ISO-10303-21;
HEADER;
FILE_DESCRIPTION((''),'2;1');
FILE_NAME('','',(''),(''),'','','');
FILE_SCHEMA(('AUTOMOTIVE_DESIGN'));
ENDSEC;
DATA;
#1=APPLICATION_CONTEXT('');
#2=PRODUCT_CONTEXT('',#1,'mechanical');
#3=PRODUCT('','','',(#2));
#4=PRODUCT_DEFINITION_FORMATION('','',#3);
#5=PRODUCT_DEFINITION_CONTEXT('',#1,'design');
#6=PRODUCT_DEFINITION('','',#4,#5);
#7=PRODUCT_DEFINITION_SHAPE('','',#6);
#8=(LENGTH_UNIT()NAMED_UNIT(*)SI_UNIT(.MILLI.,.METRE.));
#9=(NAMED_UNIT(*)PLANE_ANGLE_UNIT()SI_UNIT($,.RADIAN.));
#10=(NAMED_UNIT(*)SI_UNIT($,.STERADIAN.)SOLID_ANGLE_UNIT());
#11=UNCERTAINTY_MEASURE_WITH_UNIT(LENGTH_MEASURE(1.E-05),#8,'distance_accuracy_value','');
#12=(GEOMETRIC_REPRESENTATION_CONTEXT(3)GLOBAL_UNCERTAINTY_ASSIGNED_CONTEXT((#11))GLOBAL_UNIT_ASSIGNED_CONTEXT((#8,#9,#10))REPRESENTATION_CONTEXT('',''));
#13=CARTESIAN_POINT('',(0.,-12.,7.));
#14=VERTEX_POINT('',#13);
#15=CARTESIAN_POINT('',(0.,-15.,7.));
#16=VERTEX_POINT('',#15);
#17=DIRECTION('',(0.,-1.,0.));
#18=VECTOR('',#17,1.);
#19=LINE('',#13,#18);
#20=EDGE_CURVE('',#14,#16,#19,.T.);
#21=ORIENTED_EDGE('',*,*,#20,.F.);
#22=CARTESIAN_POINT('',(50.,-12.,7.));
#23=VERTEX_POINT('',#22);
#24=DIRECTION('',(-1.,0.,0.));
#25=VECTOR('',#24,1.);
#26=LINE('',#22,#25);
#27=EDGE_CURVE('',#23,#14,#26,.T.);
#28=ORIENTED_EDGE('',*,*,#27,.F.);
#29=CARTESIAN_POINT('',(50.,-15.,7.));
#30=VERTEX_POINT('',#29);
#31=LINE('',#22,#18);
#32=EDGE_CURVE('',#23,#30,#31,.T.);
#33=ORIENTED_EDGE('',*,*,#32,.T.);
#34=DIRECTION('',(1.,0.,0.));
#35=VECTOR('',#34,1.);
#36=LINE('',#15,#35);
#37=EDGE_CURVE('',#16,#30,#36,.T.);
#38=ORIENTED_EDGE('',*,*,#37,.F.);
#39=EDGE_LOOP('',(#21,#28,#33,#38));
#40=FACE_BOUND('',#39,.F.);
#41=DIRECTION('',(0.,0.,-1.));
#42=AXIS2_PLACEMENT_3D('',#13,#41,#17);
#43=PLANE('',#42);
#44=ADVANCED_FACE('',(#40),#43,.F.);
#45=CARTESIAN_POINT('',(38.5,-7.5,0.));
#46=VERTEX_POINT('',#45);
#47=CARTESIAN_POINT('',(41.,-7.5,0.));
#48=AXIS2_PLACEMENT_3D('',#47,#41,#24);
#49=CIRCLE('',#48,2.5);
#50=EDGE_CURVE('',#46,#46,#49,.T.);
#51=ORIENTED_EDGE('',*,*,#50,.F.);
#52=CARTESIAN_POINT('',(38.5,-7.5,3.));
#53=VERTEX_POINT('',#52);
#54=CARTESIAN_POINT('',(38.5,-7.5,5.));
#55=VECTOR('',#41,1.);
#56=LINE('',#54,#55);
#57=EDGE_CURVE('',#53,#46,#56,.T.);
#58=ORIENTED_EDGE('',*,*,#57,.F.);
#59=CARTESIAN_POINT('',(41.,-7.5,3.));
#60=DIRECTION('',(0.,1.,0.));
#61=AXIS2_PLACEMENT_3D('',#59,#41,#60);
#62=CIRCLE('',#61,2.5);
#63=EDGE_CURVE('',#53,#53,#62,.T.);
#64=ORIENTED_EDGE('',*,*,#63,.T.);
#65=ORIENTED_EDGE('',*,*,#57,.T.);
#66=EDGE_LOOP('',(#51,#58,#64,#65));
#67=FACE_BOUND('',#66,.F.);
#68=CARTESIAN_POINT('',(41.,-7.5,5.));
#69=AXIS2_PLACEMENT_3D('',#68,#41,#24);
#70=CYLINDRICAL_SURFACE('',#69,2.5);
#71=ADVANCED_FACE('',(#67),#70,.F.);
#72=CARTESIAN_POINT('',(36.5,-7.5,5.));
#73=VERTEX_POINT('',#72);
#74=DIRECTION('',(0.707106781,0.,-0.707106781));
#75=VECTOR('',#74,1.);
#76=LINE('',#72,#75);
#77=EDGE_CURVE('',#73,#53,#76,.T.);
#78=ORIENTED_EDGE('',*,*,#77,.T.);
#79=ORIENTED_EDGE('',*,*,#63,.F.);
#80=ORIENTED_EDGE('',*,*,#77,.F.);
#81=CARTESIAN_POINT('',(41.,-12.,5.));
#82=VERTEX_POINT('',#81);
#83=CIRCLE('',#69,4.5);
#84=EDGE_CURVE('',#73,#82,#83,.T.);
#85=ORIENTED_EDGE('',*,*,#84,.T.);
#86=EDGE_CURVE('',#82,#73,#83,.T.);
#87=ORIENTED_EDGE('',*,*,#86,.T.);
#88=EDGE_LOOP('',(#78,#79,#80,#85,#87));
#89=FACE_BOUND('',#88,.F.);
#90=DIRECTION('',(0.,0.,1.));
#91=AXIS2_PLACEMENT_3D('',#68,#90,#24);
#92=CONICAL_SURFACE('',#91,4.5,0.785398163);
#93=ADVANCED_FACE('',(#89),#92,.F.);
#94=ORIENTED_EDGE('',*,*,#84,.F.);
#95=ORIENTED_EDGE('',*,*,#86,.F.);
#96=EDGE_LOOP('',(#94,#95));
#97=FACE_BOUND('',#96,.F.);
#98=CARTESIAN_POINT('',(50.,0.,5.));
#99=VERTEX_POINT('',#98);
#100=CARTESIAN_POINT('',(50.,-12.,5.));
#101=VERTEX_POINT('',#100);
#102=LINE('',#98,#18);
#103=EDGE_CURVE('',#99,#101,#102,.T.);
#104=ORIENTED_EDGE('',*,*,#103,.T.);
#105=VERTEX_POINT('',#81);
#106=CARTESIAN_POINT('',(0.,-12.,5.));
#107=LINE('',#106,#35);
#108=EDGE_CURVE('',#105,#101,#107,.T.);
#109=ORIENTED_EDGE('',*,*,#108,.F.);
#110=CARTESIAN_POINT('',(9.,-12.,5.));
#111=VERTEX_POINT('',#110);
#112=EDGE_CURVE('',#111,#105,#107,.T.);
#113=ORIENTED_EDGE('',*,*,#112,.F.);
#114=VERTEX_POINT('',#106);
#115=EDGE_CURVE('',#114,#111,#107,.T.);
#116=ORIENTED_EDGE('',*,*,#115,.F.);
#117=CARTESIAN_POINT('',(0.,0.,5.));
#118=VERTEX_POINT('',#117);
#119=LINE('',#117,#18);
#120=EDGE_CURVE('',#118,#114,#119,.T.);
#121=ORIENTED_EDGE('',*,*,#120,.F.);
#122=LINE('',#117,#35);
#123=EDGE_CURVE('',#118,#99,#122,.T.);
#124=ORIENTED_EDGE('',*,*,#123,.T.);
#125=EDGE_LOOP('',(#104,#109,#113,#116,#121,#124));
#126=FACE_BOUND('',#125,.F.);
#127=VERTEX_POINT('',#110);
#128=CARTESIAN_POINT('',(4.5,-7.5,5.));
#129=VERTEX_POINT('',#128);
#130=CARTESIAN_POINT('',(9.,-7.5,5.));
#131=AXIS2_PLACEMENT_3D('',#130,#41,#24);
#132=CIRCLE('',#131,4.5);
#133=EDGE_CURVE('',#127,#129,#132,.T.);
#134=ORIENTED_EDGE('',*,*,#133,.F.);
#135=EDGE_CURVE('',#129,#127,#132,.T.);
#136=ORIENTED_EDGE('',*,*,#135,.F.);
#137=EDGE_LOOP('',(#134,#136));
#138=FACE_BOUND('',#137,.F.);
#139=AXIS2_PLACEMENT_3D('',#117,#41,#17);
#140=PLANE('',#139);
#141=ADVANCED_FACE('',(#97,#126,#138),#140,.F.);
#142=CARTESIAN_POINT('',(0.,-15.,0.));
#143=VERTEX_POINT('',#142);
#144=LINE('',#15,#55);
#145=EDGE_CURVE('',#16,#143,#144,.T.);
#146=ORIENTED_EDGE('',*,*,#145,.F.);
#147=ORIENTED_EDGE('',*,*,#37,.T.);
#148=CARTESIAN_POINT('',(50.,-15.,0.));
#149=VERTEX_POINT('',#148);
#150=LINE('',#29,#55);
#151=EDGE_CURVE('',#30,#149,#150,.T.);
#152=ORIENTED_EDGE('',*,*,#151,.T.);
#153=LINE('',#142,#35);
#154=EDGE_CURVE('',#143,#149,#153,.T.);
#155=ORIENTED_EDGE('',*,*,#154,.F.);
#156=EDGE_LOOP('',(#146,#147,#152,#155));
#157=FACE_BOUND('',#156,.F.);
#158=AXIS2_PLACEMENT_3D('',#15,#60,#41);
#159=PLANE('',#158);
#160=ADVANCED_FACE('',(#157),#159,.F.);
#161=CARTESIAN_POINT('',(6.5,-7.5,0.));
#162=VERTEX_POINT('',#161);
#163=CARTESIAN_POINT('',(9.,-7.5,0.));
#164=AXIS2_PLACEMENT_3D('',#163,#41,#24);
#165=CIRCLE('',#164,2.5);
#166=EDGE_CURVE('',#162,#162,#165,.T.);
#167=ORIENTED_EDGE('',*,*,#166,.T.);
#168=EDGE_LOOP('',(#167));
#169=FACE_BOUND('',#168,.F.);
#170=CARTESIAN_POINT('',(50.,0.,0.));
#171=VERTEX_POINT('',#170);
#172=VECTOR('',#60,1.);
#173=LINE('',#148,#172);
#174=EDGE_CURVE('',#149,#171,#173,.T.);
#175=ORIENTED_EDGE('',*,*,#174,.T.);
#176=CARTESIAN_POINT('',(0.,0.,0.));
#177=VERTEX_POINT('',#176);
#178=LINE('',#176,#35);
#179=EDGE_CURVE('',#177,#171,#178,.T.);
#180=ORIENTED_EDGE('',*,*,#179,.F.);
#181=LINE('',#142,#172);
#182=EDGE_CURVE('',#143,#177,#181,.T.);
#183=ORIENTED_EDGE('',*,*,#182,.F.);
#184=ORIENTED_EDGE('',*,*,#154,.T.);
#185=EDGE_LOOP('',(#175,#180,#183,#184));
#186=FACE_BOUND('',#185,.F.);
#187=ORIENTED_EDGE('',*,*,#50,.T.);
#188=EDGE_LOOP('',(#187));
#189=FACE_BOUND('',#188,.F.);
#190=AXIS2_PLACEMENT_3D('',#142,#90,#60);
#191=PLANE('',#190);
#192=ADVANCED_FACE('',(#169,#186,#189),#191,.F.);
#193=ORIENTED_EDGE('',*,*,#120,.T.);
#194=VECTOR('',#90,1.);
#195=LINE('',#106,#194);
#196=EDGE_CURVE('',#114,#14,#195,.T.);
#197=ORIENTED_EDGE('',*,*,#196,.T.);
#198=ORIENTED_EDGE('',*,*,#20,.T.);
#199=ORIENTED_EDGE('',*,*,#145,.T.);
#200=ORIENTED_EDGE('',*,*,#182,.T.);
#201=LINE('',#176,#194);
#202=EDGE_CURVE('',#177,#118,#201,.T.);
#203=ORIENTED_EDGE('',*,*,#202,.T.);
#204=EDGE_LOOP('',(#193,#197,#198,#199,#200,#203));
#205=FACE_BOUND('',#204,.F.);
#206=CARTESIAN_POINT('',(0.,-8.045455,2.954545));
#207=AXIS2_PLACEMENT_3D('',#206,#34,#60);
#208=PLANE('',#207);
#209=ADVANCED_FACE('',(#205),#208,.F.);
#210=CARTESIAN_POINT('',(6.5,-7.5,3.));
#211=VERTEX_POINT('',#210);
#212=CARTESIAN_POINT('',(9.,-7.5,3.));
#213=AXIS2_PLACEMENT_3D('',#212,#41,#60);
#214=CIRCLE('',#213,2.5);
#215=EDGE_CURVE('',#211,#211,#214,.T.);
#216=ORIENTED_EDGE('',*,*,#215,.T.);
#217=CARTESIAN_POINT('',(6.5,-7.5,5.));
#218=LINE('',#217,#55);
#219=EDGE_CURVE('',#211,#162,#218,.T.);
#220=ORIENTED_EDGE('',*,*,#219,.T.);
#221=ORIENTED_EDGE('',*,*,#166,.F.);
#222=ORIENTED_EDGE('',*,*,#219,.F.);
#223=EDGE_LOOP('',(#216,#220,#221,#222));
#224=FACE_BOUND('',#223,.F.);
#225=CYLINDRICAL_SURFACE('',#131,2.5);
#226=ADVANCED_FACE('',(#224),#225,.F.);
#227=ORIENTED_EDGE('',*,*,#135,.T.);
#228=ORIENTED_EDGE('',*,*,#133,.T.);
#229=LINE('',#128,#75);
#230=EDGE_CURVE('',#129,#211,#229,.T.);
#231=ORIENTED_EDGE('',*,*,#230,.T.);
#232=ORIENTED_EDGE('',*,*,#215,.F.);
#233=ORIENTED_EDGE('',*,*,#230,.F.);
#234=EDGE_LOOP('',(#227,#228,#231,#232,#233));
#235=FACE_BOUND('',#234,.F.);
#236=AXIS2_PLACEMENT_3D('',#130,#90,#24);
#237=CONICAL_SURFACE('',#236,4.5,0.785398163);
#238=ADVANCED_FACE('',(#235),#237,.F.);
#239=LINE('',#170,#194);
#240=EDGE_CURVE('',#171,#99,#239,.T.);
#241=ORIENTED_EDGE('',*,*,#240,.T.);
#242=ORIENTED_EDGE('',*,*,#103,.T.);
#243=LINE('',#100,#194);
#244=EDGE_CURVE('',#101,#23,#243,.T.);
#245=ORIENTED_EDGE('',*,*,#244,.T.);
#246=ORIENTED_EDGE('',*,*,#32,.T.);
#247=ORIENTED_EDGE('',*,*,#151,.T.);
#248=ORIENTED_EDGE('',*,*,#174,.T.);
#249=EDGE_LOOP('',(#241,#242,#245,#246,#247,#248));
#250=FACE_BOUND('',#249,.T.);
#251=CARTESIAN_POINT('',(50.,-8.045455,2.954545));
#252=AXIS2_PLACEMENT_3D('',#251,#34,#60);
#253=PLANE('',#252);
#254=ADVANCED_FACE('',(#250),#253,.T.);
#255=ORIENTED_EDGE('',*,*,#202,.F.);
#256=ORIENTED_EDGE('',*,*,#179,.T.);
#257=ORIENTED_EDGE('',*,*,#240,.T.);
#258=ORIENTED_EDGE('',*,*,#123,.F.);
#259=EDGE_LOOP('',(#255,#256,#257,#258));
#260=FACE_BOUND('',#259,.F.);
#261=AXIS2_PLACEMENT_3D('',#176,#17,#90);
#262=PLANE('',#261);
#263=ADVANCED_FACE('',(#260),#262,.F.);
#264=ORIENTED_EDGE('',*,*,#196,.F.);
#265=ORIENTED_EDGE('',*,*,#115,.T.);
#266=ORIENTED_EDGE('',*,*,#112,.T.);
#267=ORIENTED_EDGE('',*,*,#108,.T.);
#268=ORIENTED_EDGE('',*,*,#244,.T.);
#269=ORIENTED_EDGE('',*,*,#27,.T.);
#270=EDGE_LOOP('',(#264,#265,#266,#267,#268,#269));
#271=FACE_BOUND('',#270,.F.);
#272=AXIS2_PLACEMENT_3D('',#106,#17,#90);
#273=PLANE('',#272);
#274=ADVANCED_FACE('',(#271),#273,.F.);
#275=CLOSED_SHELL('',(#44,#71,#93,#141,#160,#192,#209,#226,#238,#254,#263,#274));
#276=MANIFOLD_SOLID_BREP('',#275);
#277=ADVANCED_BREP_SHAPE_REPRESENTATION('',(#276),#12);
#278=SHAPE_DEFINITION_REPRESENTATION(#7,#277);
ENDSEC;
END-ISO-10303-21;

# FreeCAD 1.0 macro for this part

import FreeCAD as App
import Part
import Sketcher
from FreeCAD import Vector
Q = App.Units.Quantity

doc = App.newDocument("Part")
body = doc.addObject("PartDesign::Body", "Body")

# Sketch on YZ plane
sketch1 = body.newObject("Sketcher::SketchObject", "Sketch")
sketch1.AttachmentSupport = (doc.getObject("YZ_Plane"), [""])
sketch1.MapMode = "FlatFace"
sketch1.addGeometry([
    Part.LineSegment(Vector(-15, 0, 0), Vector(0, 0, 0)),  # 0
    Part.LineSegment(Vector(0, 0, 0), Vector(0, 5, 0)),  # 1
    Part.LineSegment(Vector(0, 5, 0), Vector(-12, 5, 0)),  # 2
    Part.LineSegment(Vector(-12, 5, 0), Vector(-12, 7, 0)),  # 3
    Part.LineSegment(Vector(-12, 7, 0), Vector(-15, 7, 0)),  # 4
    Part.LineSegment(Vector(-15, 7, 0), Vector(-15, 0, 0)),  # 5
], False)
sketch1.addConstraint([
    Sketcher.Constraint("Coincident", 0, 2, 1, 1),
    Sketcher.Constraint("Coincident", 1, 2, 2, 1),
    Sketcher.Constraint("Coincident", 2, 2, 3, 1),
    Sketcher.Constraint("Coincident", 3, 2, 4, 1),
    Sketcher.Constraint("Coincident", 4, 2, 5, 1),
    Sketcher.Constraint("Coincident", 5, 2, 0, 1),
    Sketcher.Constraint("Horizontal", 0),
    Sketcher.Constraint("Vertical", 1),
    Sketcher.Constraint("Horizontal", 2),
    Sketcher.Constraint("Vertical", 3),
    Sketcher.Constraint("Horizontal", 4),
    Sketcher.Constraint("Vertical", 5),
    Sketcher.Constraint("Coincident", 0, 2, -1, 1),
    Sketcher.Constraint("DistanceX", 0, 1, 0, 2, Q("15 mm")),
    Sketcher.Constraint("DistanceX", 2, 2, 2, 1, Q("12 mm")),
    Sketcher.Constraint("DistanceY", 1, 1, 1, 2, Q("5 mm")),
    Sketcher.Constraint("DistanceY", 3, 1, 3, 2, Q("2 mm")),
])
pad1 = body.newObject("PartDesign::Pad", "Pad")
pad1.Profile = sketch1
pad1.Length = 50

# Sketch on XY plane
sketch2 = body.newObject("Sketcher::SketchObject", "Sketch001")
sketch2.AttachmentSupport = (doc.getObject("XY_Plane"), [""])
sketch2.MapMode = "FlatFace"
sketch2.AttachmentOffset = App.Placement(Vector(0, 0, 5), App.Rotation())
sketch2.addGeometry([
    Part.Circle(Vector(41, -7.5, 0), Vector(0, 0, 1), 2.5),
    Part.Circle(Vector(9, -7.5, 0), Vector(0, 0, 1), 2.5),
], False)
sketch2.addConstraint([
    Sketcher.Constraint("Equal", 0, 1),
    Sketcher.Constraint("Horizontal", 0, 3, 1, 3),
    Sketcher.Constraint("Diameter", 0, Q("5 mm")),
    Sketcher.Constraint("DistanceX", -1, 1, 0, 3, Q("41 mm")),
    Sketcher.Constraint("DistanceX", -1, 1, 1, 3, Q("9 mm")),
    Sketcher.Constraint("DistanceY", 0, 3, -1, 1, Q("7.5 mm")),
])
doc.recompute()
hole = body.newObject("PartDesign::Hole", "Hole")
hole.Profile = sketch2
hole.ThreadType = "None"
hole.Diameter = 5
hole.DepthType = "ThroughAll"
hole.HoleCutType = "Countersink"
hole.HoleCutDiameter = 9
hole.HoleCutCountersinkAngle = 90

doc.recompute()
